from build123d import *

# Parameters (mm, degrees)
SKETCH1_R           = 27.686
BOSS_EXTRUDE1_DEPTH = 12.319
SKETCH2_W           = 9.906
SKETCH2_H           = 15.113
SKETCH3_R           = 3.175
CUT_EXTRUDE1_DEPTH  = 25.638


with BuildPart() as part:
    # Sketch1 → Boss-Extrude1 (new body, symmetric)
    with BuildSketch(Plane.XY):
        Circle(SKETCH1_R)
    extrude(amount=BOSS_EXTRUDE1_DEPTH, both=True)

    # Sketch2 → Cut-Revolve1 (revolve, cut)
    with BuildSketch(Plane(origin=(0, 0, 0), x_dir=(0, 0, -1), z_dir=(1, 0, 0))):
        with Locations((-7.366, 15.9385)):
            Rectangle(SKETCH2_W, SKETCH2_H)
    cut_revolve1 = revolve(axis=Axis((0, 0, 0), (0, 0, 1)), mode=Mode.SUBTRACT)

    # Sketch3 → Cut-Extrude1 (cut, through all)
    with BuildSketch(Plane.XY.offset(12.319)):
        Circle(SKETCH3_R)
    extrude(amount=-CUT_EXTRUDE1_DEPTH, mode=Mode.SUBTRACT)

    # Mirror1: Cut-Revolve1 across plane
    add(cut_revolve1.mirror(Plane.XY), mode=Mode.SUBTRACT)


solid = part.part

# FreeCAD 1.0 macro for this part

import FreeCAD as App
import Part
import Sketcher
from FreeCAD import Vector
Q = App.Units.Quantity

doc = App.newDocument("Part")
body = doc.addObject("PartDesign::Body", "Body")

# Sketch on XY plane
sketch1 = body.newObject("Sketcher::SketchObject", "Sketch")
sketch1.AttachmentSupport = (doc.getObject("XY_Plane"), [""])
sketch1.MapMode = "FlatFace"
sketch1.addGeometry(Part.Circle(Vector(0, 0, 0), Vector(0, 0, 1), 27.686), False)
sketch1.addConstraint(Sketcher.Constraint("Coincident", 0, 3, -1, 1))
sketch1.addConstraint(Sketcher.Constraint("Diameter", 0, Q("2.18 in")))
pad1 = body.newObject("PartDesign::Pad", "Pad")
pad1.Profile = sketch1
pad1.Length = Q("0.97 in")
pad1.Midplane = True

# Sketch on YZ plane
sketch2 = body.newObject("Sketcher::SketchObject", "Sketch001")
sketch2.AttachmentSupport = (doc.getObject("YZ_Plane"), [""])
sketch2.MapMode = "FlatFace"
sketch2.addGeometry(Part.LineSegment(Vector(23.495, 12.319, 0), Vector(8.382, 12.319, 0)), False)
sketch2.addGeometry(Part.LineSegment(Vector(8.382, 12.319, 0), Vector(8.382, 2.413, 0)), False)
sketch2.addGeometry(Part.LineSegment(Vector(8.382, 2.413, 0), Vector(23.495, 2.413, 0)), False)
sketch2.addGeometry(Part.LineSegment(Vector(23.495, 2.413, 0), Vector(23.495, 12.319, 0)), False)
sketch2.addConstraint(Sketcher.Constraint("Coincident", 0, 2, 1, 1))
sketch2.addConstraint(Sketcher.Constraint("Coincident", 1, 2, 2, 1))
sketch2.addConstraint(Sketcher.Constraint("Coincident", 2, 2, 3, 1))
sketch2.addConstraint(Sketcher.Constraint("Coincident", 3, 2, 0, 1))
sketch2.addConstraint(Sketcher.Constraint("Horizontal", 0))
sketch2.addConstraint(Sketcher.Constraint("Vertical", 1))
sketch2.addConstraint(Sketcher.Constraint("Horizontal", 2))
sketch2.addConstraint(Sketcher.Constraint("Vertical", 3))
sketch2.addConstraint(Sketcher.Constraint("DistanceY", 1, 2, 1, 1, Q("0.39 in")))
sketch2.addConstraint(Sketcher.Constraint("DistanceX", 0, 2, 0, 1, Q("0.595 in")))
sketch2.addConstraint(Sketcher.Constraint("DistanceX", -1, 1, 0, 2, Q("0.33 in")))
sketch2.addConstraint(Sketcher.Constraint("DistanceY", -1, 1, 0, 2, Q("0.485 in")))
groove = body.newObject("PartDesign::Groove", "Groove")
groove.Profile = sketch2
groove.ReferenceAxis = (sketch2, ["V_Axis"])
groove.Angle = 360

# Sketch on XY plane
sketch3 = body.newObject("Sketcher::SketchObject", "Sketch002")
sketch3.AttachmentSupport = (doc.getObject("XY_Plane"), [""])
sketch3.MapMode = "FlatFace"
sketch3.AttachmentOffset = App.Placement(Vector(0, 0, 0.485 * 25.4), App.Rotation())
sketch3.addGeometry(Part.Circle(Vector(0, 0, 0), Vector(0, 0, 1), 3.175), False)
sketch3.addConstraint(Sketcher.Constraint("Coincident", 0, 3, -1, 1))
sketch3.addConstraint(Sketcher.Constraint("Diameter", 0, Q("0.25 in")))
pocket1 = body.newObject("PartDesign::Pocket", "Pocket")
pocket1.Profile = sketch3
pocket1.Type = "ThroughAll"
doc.recompute()

mirrored = body.newObject("PartDesign::Mirrored", "Mirrored")
mirrored.Originals = [groove]
mirrored.MirrorPlane = (doc.getObject("XY_Plane"), [""])
body.Tip = mirrored

doc.recompute()
